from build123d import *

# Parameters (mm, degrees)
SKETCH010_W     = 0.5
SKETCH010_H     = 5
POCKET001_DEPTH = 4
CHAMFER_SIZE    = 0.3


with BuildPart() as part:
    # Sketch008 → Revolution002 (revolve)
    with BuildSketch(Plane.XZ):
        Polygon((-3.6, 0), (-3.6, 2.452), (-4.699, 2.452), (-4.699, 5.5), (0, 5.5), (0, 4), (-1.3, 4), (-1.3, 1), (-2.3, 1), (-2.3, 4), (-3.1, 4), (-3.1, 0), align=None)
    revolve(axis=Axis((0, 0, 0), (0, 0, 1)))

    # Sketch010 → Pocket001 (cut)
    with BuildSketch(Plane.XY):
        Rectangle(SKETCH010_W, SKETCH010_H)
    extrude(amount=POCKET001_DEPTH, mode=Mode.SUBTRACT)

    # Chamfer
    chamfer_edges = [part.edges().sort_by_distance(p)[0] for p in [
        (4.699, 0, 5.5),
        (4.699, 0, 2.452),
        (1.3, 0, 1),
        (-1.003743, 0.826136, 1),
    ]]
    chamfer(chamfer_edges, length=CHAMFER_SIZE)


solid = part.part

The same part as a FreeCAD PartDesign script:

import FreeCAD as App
import Part
import Sketcher
from FreeCAD import Vector


def edges_at(feature, points):
    """Names of the edges that pass closest to the given points."""
    edges = feature.Shape.Edges
    near = lambda p: min(range(len(edges)), key=lambda i: edges[i].distToShape(Part.Vertex(*p))[0])
    return sorted({f"Edge{near(p) + 1}" for p in points})


def add_polygon(sketch, points):
    """Adds a closed chain of lines whose ends are joined by coincident constraints."""
    first, n = sketch.GeometryCount, len(points)
    for a, b in zip(points, points[1:] + points[:1]):
        sketch.addGeometry(Part.LineSegment(App.Vector(*a, 0), App.Vector(*b, 0)), False)
    for i in range(n):
        sketch.addConstraint(Sketcher.Constraint("Coincident", first + i, 2, first + (i + 1) % n, 1))

doc = App.newDocument("Part")
body = doc.addObject("PartDesign::Body", "Body")

# Sketch on XZ plane
sketch1 = body.newObject("Sketcher::SketchObject", "Sketch")
sketch1.AttachmentSupport = (doc.getObject("XZ_Plane"), [""])
sketch1.MapMode = "FlatFace"
add_polygon(sketch1, [(-3.6, 2.5), (-3.6, 0), (-3.1, 0), (-3.1, 4), (-2.3, 4), (-2.3, 1), (-1.3, 1), (-1.3, 4), (0, 4), (0, 5.5), (-4.7, 5.5), (-4.7, 2.5)])  # lines 0-11
sketch1.addConstraint([
    Sketcher.Constraint("Vertical", 0),
    Sketcher.Constraint("Horizontal", 1),
    Sketcher.Constraint("Vertical", 2),
    Sketcher.Constraint("Horizontal", 3),
    Sketcher.Constraint("Vertical", 4),
    Sketcher.Constraint("Horizontal", 5),
    Sketcher.Constraint("Vertical", 6),
    Sketcher.Constraint("Horizontal", 7),
    Sketcher.Constraint("Vertical", 8),
    Sketcher.Constraint("Horizontal", 9),
    Sketcher.Constraint("Vertical", 10),
    Sketcher.Constraint("Horizontal", 11),
    Sketcher.Constraint("PointOnObject", 0, 2, -1),
    Sketcher.Constraint("PointOnObject", 7, 2, -2),
    Sketcher.Constraint("Horizontal", 3, 2, 6, 2),
    Sketcher.Constraint("DistanceX", 5, 1, 5, 2, 1.0),
    Sketcher.Constraint("DistanceY", 2, 1, 2, 2, 4.0),
    Sketcher.Constraint("DistanceY", 4, 2, 4, 1, 3.0),
    Sketcher.Constraint("DistanceX", 1, 1, 1, 2, 0.5),
    Sketcher.Constraint("DistanceX", 3, 1, 3, 2, 0.8),
    Sketcher.Constraint("DistanceX", 7, 1, 7, 2, 1.3),
    Sketcher.Constraint("DistanceY", 8, 1, 8, 2, 1.5),
    Sketcher.Constraint("DistanceX", 9, 2, 9, 1, 4.699),
    Sketcher.Constraint("DistanceY", 0, 2, 0, 1, 2.452),
])
revolution = body.newObject("PartDesign::Revolution", "Revolution")
revolution.Profile = sketch1
revolution.ReferenceAxis = (sketch1, ["V_Axis"])
revolution.Angle = 360

# Sketch on XY plane
sketch2 = body.newObject("Sketcher::SketchObject", "Sketch001")
sketch2.AttachmentSupport = (doc.getObject("XY_Plane"), [""])
sketch2.MapMode = "FlatFace"
add_polygon(sketch2, [(-0.2, 2.5), (-0.2, -2.5), (0.2, -2.5), (0.2, 2.5)])  # lines 0-3
sketch2.addConstraint([
    Sketcher.Constraint("Vertical", 0),
    Sketcher.Constraint("Horizontal", 1),
    Sketcher.Constraint("Vertical", 2),
    Sketcher.Constraint("Horizontal", 3),
    Sketcher.Constraint("Symmetric", 0, 2, 2, 2, -1, 1),
    Sketcher.Constraint("DistanceY", 0, 2, 0, 1, 5.0),
    Sketcher.Constraint("DistanceX", 1, 1, 1, 2, 0.5),
])
pocket1 = body.newObject("PartDesign::Pocket", "Pocket")
pocket1.Profile = sketch2
pocket1.Length = 4
pocket1.Reversed = True
doc.recompute()

chamfer = body.newObject("PartDesign::Chamfer", "Chamfer")
chamfer.Base = (pocket1, edges_at(pocket1, [
    (4.699, 0, 5.5),
    (4.699, 0, 2.452),
    (1.3, 0, 1),
    (-1.3, 0, 1),
]))
chamfer.Size = 0.3

doc.recompute()
